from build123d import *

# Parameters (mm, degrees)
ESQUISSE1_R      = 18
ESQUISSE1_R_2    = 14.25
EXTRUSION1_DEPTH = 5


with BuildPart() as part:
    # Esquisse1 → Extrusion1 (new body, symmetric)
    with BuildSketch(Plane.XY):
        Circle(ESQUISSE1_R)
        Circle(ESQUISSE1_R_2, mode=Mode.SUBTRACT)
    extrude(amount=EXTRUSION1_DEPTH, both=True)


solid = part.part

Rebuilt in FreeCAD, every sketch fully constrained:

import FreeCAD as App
import Part
import Sketcher
from FreeCAD import Vector
Q = App.Units.Quantity

doc = App.newDocument("Part")
body = doc.addObject("PartDesign::Body", "Body")

# Sketch on XY plane
sketch1 = body.newObject("Sketcher::SketchObject", "Sketch")
sketch1.AttachmentSupport = (doc.getObject("XY_Plane"), [""])
sketch1.MapMode = "FlatFace"
sketch1.addGeometry(Part.Circle(Vector(0, 0, 0), Vector(0, 0, 1), 18), False)
sketch1.addGeometry(Part.Circle(Vector(0, 0, 0), Vector(0, 0, 1), 14), False)
sketch1.addConstraint(Sketcher.Constraint("Coincident", 0, 3, -1, 1))
sketch1.addConstraint(Sketcher.Constraint("Coincident", 1, 3, -1, 1))
sketch1.addConstraint(Sketcher.Constraint("Diameter", 0, Q("36 mm")))
sketch1.addConstraint(Sketcher.Constraint("Diameter", 1, Q("28.5 mm")))
pad1 = body.newObject("PartDesign::Pad", "Pad")
pad1.Profile = sketch1
pad1.Length = 10
pad1.Midplane = True

doc.recompute()
